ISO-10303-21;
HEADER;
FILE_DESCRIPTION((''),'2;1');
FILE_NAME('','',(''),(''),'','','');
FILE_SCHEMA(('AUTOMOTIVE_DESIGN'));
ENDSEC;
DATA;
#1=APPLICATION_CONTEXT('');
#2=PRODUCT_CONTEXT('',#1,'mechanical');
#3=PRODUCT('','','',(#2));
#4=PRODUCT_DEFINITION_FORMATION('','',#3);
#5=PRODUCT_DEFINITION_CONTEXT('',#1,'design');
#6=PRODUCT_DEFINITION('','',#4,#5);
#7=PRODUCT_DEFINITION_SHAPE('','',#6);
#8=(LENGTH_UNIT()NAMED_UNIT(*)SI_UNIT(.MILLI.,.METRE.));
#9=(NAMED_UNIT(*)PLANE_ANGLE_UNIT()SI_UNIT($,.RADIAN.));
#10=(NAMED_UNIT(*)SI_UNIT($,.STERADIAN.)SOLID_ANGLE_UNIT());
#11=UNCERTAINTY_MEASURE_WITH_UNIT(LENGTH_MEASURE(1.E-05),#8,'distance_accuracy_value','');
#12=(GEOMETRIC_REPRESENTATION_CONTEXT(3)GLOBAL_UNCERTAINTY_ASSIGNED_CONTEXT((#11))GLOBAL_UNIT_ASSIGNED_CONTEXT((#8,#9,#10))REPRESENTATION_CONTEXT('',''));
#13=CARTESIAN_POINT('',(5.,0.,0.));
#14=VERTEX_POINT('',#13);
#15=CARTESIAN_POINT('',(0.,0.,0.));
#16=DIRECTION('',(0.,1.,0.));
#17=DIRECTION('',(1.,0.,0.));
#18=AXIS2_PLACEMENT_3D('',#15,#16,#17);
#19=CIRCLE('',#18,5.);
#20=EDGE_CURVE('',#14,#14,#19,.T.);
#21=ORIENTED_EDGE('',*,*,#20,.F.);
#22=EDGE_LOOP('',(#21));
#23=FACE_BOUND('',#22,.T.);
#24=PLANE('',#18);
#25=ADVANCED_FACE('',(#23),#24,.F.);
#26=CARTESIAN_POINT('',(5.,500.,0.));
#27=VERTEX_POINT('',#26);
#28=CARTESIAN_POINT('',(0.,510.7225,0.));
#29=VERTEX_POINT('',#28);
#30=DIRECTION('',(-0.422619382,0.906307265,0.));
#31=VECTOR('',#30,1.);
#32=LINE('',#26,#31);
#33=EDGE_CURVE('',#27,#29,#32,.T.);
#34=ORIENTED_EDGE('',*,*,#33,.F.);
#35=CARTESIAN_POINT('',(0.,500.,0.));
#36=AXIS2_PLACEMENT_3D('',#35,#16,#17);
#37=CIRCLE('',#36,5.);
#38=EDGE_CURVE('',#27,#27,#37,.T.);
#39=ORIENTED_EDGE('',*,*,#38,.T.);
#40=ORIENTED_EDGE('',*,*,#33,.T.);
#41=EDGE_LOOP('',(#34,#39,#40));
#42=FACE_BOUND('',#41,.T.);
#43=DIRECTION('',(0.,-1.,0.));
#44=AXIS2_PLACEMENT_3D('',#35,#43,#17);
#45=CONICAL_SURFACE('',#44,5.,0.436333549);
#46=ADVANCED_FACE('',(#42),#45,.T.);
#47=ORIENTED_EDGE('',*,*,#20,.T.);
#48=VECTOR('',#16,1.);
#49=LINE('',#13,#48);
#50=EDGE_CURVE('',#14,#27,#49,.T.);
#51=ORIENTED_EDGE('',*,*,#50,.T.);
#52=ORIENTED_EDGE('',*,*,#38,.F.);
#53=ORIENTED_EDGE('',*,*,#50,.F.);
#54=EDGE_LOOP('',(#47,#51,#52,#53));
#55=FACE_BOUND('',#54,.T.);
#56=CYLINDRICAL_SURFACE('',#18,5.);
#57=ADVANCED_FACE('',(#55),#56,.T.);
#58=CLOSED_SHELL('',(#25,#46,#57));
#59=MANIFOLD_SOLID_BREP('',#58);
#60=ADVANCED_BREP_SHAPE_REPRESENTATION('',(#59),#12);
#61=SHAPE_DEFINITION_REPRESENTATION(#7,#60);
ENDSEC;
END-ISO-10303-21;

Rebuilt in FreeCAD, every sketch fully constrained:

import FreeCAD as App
import Part
import Sketcher
Q = App.Units.Quantity


def add_polygon(sketch, points):
    """Adds a closed chain of lines whose ends are joined by coincident constraints."""
    first, n = sketch.GeometryCount, len(points)
    for a, b in zip(points, points[1:] + points[:1]):
        sketch.addGeometry(Part.LineSegment(App.Vector(*a, 0), App.Vector(*b, 0)), False)
    for i in range(n):
        sketch.addConstraint(Sketcher.Constraint("Coincident", first + i, 2, first + (i + 1) % n, 1))

doc = App.newDocument("Part")
body = doc.addObject("PartDesign::Body", "Body")

sketch1 = body.newObject("Sketcher::SketchObject", "Sketch")
sketch1.AttachmentSupport = (doc.getObject("XY_Plane"), [""])
sketch1.MapMode = "FlatFace"
add_polygon(sketch1, [(0, 510.7225), (0, 0), (5, 0), (5, 500)])
sketch1.addConstraint(Sketcher.Constraint("Vertical", 0))
sketch1.addConstraint(Sketcher.Constraint("Horizontal", 1))
sketch1.addConstraint(Sketcher.Constraint("Vertical", 2))
sketch1.addConstraint(Sketcher.Constraint("Coincident", 0, 2, -1, 1))
sketch1.addConstraint(Sketcher.Constraint("DistanceX", 1, 1, 1, 2, 5.0))
sketch1.addConstraint(Sketcher.Constraint("DistanceY", 2, 1, 2, 2, 500.0))
sketch1.addConstraint(Sketcher.Constraint("Angle", 3, Q("115 deg")))
revolution = body.newObject("PartDesign::Revolution", "Revolution")
revolution.Profile = sketch1
revolution.ReferenceAxis = (sketch1, ["V_Axis"])
revolution.Angle = 360

doc.recompute()
